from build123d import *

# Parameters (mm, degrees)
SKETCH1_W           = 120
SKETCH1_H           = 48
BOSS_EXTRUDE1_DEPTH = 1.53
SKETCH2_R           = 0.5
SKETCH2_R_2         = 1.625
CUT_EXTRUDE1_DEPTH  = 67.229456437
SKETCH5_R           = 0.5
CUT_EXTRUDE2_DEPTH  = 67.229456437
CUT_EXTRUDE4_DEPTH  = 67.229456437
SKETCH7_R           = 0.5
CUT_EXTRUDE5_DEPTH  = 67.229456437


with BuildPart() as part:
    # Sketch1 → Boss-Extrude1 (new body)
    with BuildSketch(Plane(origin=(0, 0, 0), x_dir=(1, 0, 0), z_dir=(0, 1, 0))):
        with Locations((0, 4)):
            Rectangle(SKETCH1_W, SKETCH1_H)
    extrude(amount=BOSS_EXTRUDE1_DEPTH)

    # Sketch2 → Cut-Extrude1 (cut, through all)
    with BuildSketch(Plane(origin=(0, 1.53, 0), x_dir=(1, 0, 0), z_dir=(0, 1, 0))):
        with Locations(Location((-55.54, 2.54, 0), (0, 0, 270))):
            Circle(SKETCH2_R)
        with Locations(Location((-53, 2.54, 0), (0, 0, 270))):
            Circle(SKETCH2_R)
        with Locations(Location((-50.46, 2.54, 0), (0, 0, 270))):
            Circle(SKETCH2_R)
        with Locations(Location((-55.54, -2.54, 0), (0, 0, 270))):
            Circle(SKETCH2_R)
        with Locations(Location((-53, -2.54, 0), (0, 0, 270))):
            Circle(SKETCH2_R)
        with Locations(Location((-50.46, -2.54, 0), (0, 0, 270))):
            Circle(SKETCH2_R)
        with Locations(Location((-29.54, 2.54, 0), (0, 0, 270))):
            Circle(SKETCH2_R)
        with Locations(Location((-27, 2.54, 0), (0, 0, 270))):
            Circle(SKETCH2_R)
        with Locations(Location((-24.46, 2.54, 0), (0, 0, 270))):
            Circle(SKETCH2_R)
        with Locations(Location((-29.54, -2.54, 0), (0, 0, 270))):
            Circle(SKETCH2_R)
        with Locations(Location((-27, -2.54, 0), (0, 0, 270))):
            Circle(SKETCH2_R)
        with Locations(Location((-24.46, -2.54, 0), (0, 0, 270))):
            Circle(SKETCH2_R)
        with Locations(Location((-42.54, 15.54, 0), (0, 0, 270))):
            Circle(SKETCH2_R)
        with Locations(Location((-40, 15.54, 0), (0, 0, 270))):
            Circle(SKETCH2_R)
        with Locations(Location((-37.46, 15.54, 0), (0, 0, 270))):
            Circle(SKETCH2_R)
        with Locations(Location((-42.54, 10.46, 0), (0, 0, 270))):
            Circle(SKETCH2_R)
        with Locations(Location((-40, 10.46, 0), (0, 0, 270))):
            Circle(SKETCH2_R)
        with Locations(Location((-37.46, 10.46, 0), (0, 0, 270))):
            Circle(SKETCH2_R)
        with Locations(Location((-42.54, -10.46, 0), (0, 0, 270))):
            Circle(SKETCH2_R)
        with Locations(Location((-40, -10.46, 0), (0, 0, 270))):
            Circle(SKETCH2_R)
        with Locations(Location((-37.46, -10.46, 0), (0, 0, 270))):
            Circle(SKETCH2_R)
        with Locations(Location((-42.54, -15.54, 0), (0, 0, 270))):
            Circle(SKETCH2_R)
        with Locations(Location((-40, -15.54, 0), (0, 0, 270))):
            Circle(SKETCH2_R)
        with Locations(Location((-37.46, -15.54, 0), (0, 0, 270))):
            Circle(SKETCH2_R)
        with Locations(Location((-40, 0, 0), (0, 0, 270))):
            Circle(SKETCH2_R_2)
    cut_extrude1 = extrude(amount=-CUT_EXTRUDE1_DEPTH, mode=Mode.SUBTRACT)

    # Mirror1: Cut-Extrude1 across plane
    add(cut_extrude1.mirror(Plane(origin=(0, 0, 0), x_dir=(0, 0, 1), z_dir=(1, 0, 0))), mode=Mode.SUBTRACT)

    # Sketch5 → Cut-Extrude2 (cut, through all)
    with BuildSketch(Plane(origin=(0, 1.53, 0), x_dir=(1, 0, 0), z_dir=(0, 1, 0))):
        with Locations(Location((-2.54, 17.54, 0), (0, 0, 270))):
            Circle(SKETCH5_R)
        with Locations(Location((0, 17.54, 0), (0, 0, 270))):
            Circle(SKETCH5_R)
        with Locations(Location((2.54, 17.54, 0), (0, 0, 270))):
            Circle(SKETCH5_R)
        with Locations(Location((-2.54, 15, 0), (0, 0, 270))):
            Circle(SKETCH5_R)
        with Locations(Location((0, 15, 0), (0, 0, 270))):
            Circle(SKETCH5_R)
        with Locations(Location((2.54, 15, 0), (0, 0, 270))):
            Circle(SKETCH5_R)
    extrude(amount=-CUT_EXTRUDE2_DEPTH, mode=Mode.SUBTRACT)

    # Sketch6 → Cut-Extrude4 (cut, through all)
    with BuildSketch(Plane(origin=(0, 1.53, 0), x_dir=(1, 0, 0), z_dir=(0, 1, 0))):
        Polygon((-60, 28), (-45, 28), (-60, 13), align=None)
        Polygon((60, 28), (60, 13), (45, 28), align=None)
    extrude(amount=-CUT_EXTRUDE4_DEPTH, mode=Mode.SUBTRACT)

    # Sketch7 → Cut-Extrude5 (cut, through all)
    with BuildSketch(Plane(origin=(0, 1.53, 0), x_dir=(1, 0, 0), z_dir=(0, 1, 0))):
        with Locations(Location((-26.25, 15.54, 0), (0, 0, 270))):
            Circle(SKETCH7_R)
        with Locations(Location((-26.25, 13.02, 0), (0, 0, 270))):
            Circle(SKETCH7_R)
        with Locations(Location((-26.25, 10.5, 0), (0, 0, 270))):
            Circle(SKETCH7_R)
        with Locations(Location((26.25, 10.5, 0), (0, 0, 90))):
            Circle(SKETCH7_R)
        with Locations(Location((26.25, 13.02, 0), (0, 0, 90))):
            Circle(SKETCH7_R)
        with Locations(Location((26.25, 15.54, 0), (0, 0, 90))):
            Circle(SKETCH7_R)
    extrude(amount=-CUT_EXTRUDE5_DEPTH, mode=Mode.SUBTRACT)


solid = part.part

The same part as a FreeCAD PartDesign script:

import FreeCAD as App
import Part
import Sketcher

V = App.Vector


def add_polygon(sketch, points):
    """Adds a closed chain of lines whose ends are joined by coincident constraints."""
    first, n = sketch.GeometryCount, len(points)
    for a, b in zip(points, points[1:] + points[:1]):
        sketch.addGeometry(Part.LineSegment(App.Vector(*a, 0), App.Vector(*b, 0)), False)
    for i in range(n):
        sketch.addConstraint(Sketcher.Constraint("Coincident", first + i, 2, first + (i + 1) % n, 1))

doc = App.newDocument("Part")
params = doc.addObject("Spreadsheet::Sheet", "Params")
for row, (alias, value) in enumerate([
    ("sketch1_width", "120 mm"),
    ("sketch1_height", "48 mm"),
    ("pad1_length", "1.53 mm"),
    ("sketch2_diameter", "1 mm"),
    ("sketch2_diameter2", "3.25 mm"),
    ("sketch3_diameter", "1 mm"),
    ("sketch4_width", "15 mm"),
    ("sketch5_diameter", "1 mm"),
], start=1):
    params.set(f"A{row}", alias)
    params.set(f"B{row}", "=" + value)
    params.setAlias(f"B{row}", alias)

body = doc.addObject("PartDesign::Body", "Body")

# Sketch on XZ plane
sketch1 = doc.addObject("Sketcher::SketchObject", "Sketch")
body.addObject(sketch1)
sketch1.AttachmentSupport = (doc.XZ_Plane, [""])
sketch1.MapMode = "FlatFace"
add_polygon(sketch1, [(-60, -28), (-60, 20), (60, 20), (60, -28)])  # lines 0-3
sketch1.addConstraint([
    Sketcher.Constraint("Vertical", 0),
    Sketcher.Constraint("Horizontal", 1),
    Sketcher.Constraint("Vertical", 2),
    Sketcher.Constraint("Horizontal", 3),
    Sketcher.Constraint("DistanceX", 1, 1, 1, 2, 120.0),
    Sketcher.Constraint("DistanceY", 0, 1, 0, 2, 48.0),
    Sketcher.Constraint("DistanceX", 0, 2, -1, 1, 60.0),
    Sketcher.Constraint("DistanceY", -1, 1, 0, 2, 20.0),
])
sketch1.setExpression("Constraints[8]", "Params.sketch1_width")
sketch1.setExpression("Constraints[9]", "Params.sketch1_height")
pad1 = doc.addObject("PartDesign::Pad", "Pad")
body.addObject(pad1)
pad1.Profile = sketch1
pad1.setExpression("Length", "Params.pad1_length")
pad1.Reversed = True

# Sketch on XZ plane
sketch2 = doc.addObject("Sketcher::SketchObject", "Sketch001")
body.addObject(sketch2)
sketch2.AttachmentSupport = (doc.XZ_Plane, [""])
sketch2.MapMode = "FlatFace"
sketch2.AttachmentOffset = App.Placement(V(0, 0, -1.53), App.Rotation())
sketch2.addGeometry([
    Part.Circle(V(-55.54, -2.54, 0), V(0, 0, 1), 0.5),  # 0
    Part.Circle(V(-53, -2.54, 0), V(0, 0, 1), 0.5),  # 1
    Part.Circle(V(-50.46, -2.54, 0), V(0, 0, 1), 0.5),  # 2
    Part.Circle(V(-55.54, 2.54, 0), V(0, 0, 1), 0.5),  # 3
    Part.Circle(V(-53, 2.54, 0), V(0, 0, 1), 0.5),  # 4
    Part.Circle(V(-50.46, 2.54, 0), V(0, 0, 1), 0.5),  # 5
    Part.Circle(V(-29.54, -2.54, 0), V(0, 0, 1), 0.5),  # 6
    Part.Circle(V(-27, -2.54, 0), V(0, 0, 1), 0.5),  # 7
    Part.Circle(V(-24.46, -2.54, 0), V(0, 0, 1), 0.5),  # 8
    Part.Circle(V(-29.54, 2.54, 0), V(0, 0, 1), 0.5),  # 9
    Part.Circle(V(-27, 2.54, 0), V(0, 0, 1), 0.5),  # 10
    Part.Circle(V(-24.46, 2.54, 0), V(0, 0, 1), 0.5),  # 11
    Part.Circle(V(-42.54, -15.54, 0), V(0, 0, 1), 0.5),  # 12
    Part.Circle(V(-40, -15.54, 0), V(0, 0, 1), 0.5),  # 13
    Part.Circle(V(-37.46, -15.54, 0), V(0, 0, 1), 0.5),  # 14
    Part.Circle(V(-42.54, -10.46, 0), V(0, 0, 1), 0.5),  # 15
    Part.Circle(V(-40, -10.46, 0), V(0, 0, 1), 0.5),  # 16
    Part.Circle(V(-37.46, -10.46, 0), V(0, 0, 1), 0.5),  # 17
    Part.Circle(V(-42.54, 10.46, 0), V(0, 0, 1), 0.5),  # 18
    Part.Circle(V(-40, 10.46, 0), V(0, 0, 1), 0.5),  # 19
    Part.Circle(V(-37.46, 10.46, 0), V(0, 0, 1), 0.5),  # 20
    Part.Circle(V(-42.54, 15.54, 0), V(0, 0, 1), 0.5),  # 21
    Part.Circle(V(-40, 15.54, 0), V(0, 0, 1), 0.5),  # 22
    Part.Circle(V(-37.46, 15.54, 0), V(0, 0, 1), 0.5),  # 23
    Part.Circle(V(-40, 0, 0), V(0, 0, 1), 1.625),  # 24
], False)
sketch2.addConstraint([
    Sketcher.Constraint("Equal", 0, 1),
    Sketcher.Constraint("Equal", 1, 2),
    Sketcher.Constraint("Equal", 2, 3),
    Sketcher.Constraint("Equal", 3, 4),
    Sketcher.Constraint("Equal", 4, 5),
    Sketcher.Constraint("Equal", 5, 6),
    Sketcher.Constraint("Equal", 6, 7),
    Sketcher.Constraint("Equal", 7, 8),
    Sketcher.Constraint("Equal", 8, 9),
    Sketcher.Constraint("Equal", 9, 10),
    Sketcher.Constraint("Equal", 10, 11),
    Sketcher.Constraint("Equal", 11, 12),
    Sketcher.Constraint("Equal", 12, 13),
    Sketcher.Constraint("Equal", 13, 14),
    Sketcher.Constraint("Equal", 14, 15),
    Sketcher.Constraint("Equal", 15, 16),
    Sketcher.Constraint("Equal", 16, 17),
    Sketcher.Constraint("Equal", 17, 18),
    Sketcher.Constraint("Equal", 18, 19),
    Sketcher.Constraint("Equal", 19, 20),
    Sketcher.Constraint("Equal", 20, 21),
    Sketcher.Constraint("Equal", 21, 22),
    Sketcher.Constraint("Equal", 22, 23),
    Sketcher.Constraint("Symmetric", 0, 3, 3, 3, -1),
    Sketcher.Constraint("Symmetric", 1, 3, 4, 3, -1),
    Sketcher.Constraint("Symmetric", 2, 3, 5, 3, -1),
    Sketcher.Constraint("Symmetric", 6, 3, 9, 3, -1),
    Sketcher.Constraint("Symmetric", 7, 3, 10, 3, -1),
    Sketcher.Constraint("Symmetric", 8, 3, 11, 3, -1),
    Sketcher.Constraint("Symmetric", 15, 3, 18, 3, -1),
    Sketcher.Constraint("Symmetric", 16, 3, 19, 3, -1),
    Sketcher.Constraint("Symmetric", 17, 3, 20, 3, -1),
    Sketcher.Constraint("Symmetric", 12, 3, 21, 3, -1),
    Sketcher.Constraint("Symmetric", 13, 3, 22, 3, -1),
    Sketcher.Constraint("Symmetric", 14, 3, 23, 3, -1),
    Sketcher.Constraint("PointOnObject", 24, 3, -1),
    Sketcher.Constraint("Horizontal", 0, 3, 1, 3),
    Sketcher.Constraint("Horizontal", 1, 3, 2, 3),
    Sketcher.Constraint("Horizontal", 2, 3, 6, 3),
    Sketcher.Constraint("Horizontal", 6, 3, 7, 3),
    Sketcher.Constraint("Horizontal", 7, 3, 8, 3),
    Sketcher.Constraint("Horizontal", 12, 3, 13, 3),
    Sketcher.Constraint("Horizontal", 13, 3, 14, 3),
    Sketcher.Constraint("Horizontal", 15, 3, 16, 3),
    Sketcher.Constraint("Horizontal", 16, 3, 17, 3),
    Sketcher.Constraint("Vertical", 12, 3, 15, 3),
    Sketcher.Constraint("Vertical", 13, 3, 16, 3),
    Sketcher.Constraint("Vertical", 14, 3, 17, 3),
    Sketcher.Constraint("Vertical", 22, 3, 24, 3),
    Sketcher.Constraint("Diameter", 0, 1.0),
    Sketcher.Constraint("Diameter", 24, 3.25),
    Sketcher.Constraint("DistanceX", 1, 3, -1, 1, 53.0),
    Sketcher.Constraint("DistanceX", 7, 3, -1, 1, 27.0),
    Sketcher.Constraint("DistanceX", 13, 3, -1, 1, 40.0),
    Sketcher.Constraint("DistanceX", 0, 3, 6, 3, 26.0),
    Sketcher.Constraint("DistanceX", 2, 3, 8, 3, 26.0),
    Sketcher.Constraint("DistanceY", 12, 3, 2, 3, 13.0),
    Sketcher.Constraint("DistanceX", 0, 3, 12, 3, 13.0),
    Sketcher.Constraint("DistanceX", 2, 3, 14, 3, 13.0),
    Sketcher.Constraint("DistanceY", 2, 3, 18, 3, 13.0),
    Sketcher.Constraint("DistanceX", 0, 3, -1, 1, 55.54),
    Sketcher.Constraint("DistanceY", 0, 3, -1, 1, 2.54),
    Sketcher.Constraint("DistanceX", 2, 3, -1, 1, 50.46),
])
sketch2.setExpression("Constraints[49]", "Params.sketch2_diameter")
sketch2.setExpression("Constraints[50]", "Params.sketch2_diameter2")
pocket1 = doc.addObject("PartDesign::Pocket", "Pocket")
body.addObject(pocket1)
pocket1.Profile = sketch2
pocket1.Type = "ThroughAll"
pocket1.Reversed = True
doc.recompute()

mirrored = doc.addObject("PartDesign::Mirrored", "Mirrored")
body.addObject(mirrored)
mirrored.Originals = [pocket1]
mirrored.MirrorPlane = (doc.YZ_Plane, [""])
body.Tip = mirrored

# Sketch on XZ plane
sketch3 = doc.addObject("Sketcher::SketchObject", "Sketch002")
body.addObject(sketch3)
sketch3.AttachmentSupport = (doc.XZ_Plane, [""])
sketch3.MapMode = "FlatFace"
sketch3.AttachmentOffset = App.Placement(V(0, 0, -1.53), App.Rotation())
sketch3.addGeometry([
    Part.Circle(V(-2.54, -17.54, 0), V(0, 0, 1), 0.5),  # 0
    Part.Circle(V(0, -17.54, 0), V(0, 0, 1), 0.5),  # 1
    Part.Circle(V(2.54, -17.54, 0), V(0, 0, 1), 0.5),  # 2
    Part.Circle(V(-2.54, -15, 0), V(0, 0, 1), 0.5),  # 3
    Part.Circle(V(0, -15, 0), V(0, 0, 1), 0.5),  # 4
    Part.Circle(V(2.54, -15, 0), V(0, 0, 1), 0.5),  # 5
], False)
sketch3.addConstraint([
    Sketcher.Constraint("Equal", 0, 1),
    Sketcher.Constraint("Equal", 1, 2),
    Sketcher.Constraint("Equal", 2, 3),
    Sketcher.Constraint("Equal", 3, 4),
    Sketcher.Constraint("Equal", 4, 5),
    Sketcher.Constraint("Symmetric", 0, 3, 2, 3, -2),
    Sketcher.Constraint("Symmetric", 3, 3, 5, 3, -2),
    Sketcher.Constraint("PointOnObject", 1, 3, -2),
    Sketcher.Constraint("PointOnObject", 4, 3, -2),
    Sketcher.Constraint("Horizontal", 0, 3, 1, 3),
    Sketcher.Constraint("Horizontal", 3, 3, 4, 3),
    Sketcher.Constraint("Vertical", 0, 3, 3, 3),
    Sketcher.Constraint("Diameter", 0, 1.0),
    Sketcher.Constraint("DistanceY", 3, 3, -1, 1, 15.0),
    Sketcher.Constraint("DistanceX", 0, 3, -1, 1, 2.54),
    Sketcher.Constraint("DistanceY", 0, 3, -1, 1, 17.54),
])
sketch3.setExpression("Constraints[12]", "Params.sketch3_diameter")
pocket2 = doc.addObject("PartDesign::Pocket", "Pocket001")
body.addObject(pocket2)
pocket2.Profile = sketch3
pocket2.Type = "ThroughAll"
pocket2.Reversed = True

# Sketch on XZ plane
sketch4 = doc.addObject("Sketcher::SketchObject", "Sketch003")
body.addObject(sketch4)
sketch4.AttachmentSupport = (doc.XZ_Plane, [""])
sketch4.MapMode = "FlatFace"
sketch4.AttachmentOffset = App.Placement(V(0, 0, -1.53), App.Rotation())
add_polygon(sketch4, [(-45, -28), (-60, -28), (-60, -13)])  # lines 0-2
add_polygon(sketch4, [(60, -13), (60, -28), (45, -28)])  # lines 3-5
sketch4.addConstraint([
    Sketcher.Constraint("Horizontal", 0),
    Sketcher.Constraint("Vertical", 1),
    Sketcher.Constraint("Vertical", 3),
    Sketcher.Constraint("Horizontal", 4),
    Sketcher.Constraint("Symmetric", 0, 2, 3, 2, -2),
    Sketcher.Constraint("Perpendicular", 2, 5),
    Sketcher.Constraint("Horizontal", 1, 2, 5, 2),
    Sketcher.Constraint("Equal", 0, 4),
    Sketcher.Constraint("DistanceX", 0, 2, 0, 1, 15.0),
    Sketcher.Constraint("DistanceX", 0, 2, -1, 1, 60.0),
    Sketcher.Constraint("DistanceY", 0, 2, -1, 1, 28.0),
])
sketch4.setExpression("Constraints[14]", "Params.sketch4_width")
pocket3 = doc.addObject("PartDesign::Pocket", "Pocket002")
body.addObject(pocket3)
pocket3.Profile = sketch4
pocket3.Type = "ThroughAll"
pocket3.Reversed = True

# Sketch on XZ plane
sketch5 = doc.addObject("Sketcher::SketchObject", "Sketch004")
body.addObject(sketch5)
sketch5.AttachmentSupport = (doc.XZ_Plane, [""])
sketch5.MapMode = "FlatFace"
sketch5.AttachmentOffset = App.Placement(V(0, 0, -1.53), App.Rotation())
sketch5.addGeometry([
    Part.Circle(V(-26.25, -15.54, 0), V(0, 0, 1), 0.5),  # 0
    Part.Circle(V(-26.25, -13.02, 0), V(0, 0, 1), 0.5),  # 1
    Part.Circle(V(-26.25, -10.5, 0), V(0, 0, 1), 0.5),  # 2
    Part.Circle(V(26.25, -10.5, 0), V(0, 0, 1), 0.5),  # 3
    Part.Circle(V(26.25, -13.02, 0), V(0, 0, 1), 0.5),  # 4
    Part.Circle(V(26.25, -15.54, 0), V(0, 0, 1), 0.5),  # 5
], False)
sketch5.addConstraint([
    Sketcher.Constraint("Equal", 0, 1),
    Sketcher.Constraint("Equal", 1, 2),
    Sketcher.Constraint("Equal", 2, 3),
    Sketcher.Constraint("Equal", 3, 4),
    Sketcher.Constraint("Equal", 4, 5),
    Sketcher.Constraint("Symmetric", 2, 3, 3, 3, -2),
    Sketcher.Constraint("Symmetric", 1, 3, 4, 3, -2),
    Sketcher.Constraint("Symmetric", 0, 3, 5, 3, -2),
    Sketcher.Constraint("Vertical", 0, 3, 1, 3),
    Sketcher.Constraint("Vertical", 1, 3, 2, 3),
    Sketcher.Constraint("Diameter", 0, 1.0),
    Sketcher.Constraint("DistanceY", 2, 3, -1, 1, 10.5),
    Sketcher.Constraint("DistanceX", 2, 3, 3, 3, 52.5),
    Sketcher.Constraint("DistanceY", 0, 3, -1, 1, 15.54),
    Sketcher.Constraint("DistanceY", 1, 3, -1, 1, 13.02),
])
sketch5.setExpression("Constraints[10]", "Params.sketch5_diameter")
pocket4 = doc.addObject("PartDesign::Pocket", "Pocket003")
body.addObject(pocket4)
pocket4.Profile = sketch5
pocket4.Type = "ThroughAll"
pocket4.Reversed = True

doc.recompute()
